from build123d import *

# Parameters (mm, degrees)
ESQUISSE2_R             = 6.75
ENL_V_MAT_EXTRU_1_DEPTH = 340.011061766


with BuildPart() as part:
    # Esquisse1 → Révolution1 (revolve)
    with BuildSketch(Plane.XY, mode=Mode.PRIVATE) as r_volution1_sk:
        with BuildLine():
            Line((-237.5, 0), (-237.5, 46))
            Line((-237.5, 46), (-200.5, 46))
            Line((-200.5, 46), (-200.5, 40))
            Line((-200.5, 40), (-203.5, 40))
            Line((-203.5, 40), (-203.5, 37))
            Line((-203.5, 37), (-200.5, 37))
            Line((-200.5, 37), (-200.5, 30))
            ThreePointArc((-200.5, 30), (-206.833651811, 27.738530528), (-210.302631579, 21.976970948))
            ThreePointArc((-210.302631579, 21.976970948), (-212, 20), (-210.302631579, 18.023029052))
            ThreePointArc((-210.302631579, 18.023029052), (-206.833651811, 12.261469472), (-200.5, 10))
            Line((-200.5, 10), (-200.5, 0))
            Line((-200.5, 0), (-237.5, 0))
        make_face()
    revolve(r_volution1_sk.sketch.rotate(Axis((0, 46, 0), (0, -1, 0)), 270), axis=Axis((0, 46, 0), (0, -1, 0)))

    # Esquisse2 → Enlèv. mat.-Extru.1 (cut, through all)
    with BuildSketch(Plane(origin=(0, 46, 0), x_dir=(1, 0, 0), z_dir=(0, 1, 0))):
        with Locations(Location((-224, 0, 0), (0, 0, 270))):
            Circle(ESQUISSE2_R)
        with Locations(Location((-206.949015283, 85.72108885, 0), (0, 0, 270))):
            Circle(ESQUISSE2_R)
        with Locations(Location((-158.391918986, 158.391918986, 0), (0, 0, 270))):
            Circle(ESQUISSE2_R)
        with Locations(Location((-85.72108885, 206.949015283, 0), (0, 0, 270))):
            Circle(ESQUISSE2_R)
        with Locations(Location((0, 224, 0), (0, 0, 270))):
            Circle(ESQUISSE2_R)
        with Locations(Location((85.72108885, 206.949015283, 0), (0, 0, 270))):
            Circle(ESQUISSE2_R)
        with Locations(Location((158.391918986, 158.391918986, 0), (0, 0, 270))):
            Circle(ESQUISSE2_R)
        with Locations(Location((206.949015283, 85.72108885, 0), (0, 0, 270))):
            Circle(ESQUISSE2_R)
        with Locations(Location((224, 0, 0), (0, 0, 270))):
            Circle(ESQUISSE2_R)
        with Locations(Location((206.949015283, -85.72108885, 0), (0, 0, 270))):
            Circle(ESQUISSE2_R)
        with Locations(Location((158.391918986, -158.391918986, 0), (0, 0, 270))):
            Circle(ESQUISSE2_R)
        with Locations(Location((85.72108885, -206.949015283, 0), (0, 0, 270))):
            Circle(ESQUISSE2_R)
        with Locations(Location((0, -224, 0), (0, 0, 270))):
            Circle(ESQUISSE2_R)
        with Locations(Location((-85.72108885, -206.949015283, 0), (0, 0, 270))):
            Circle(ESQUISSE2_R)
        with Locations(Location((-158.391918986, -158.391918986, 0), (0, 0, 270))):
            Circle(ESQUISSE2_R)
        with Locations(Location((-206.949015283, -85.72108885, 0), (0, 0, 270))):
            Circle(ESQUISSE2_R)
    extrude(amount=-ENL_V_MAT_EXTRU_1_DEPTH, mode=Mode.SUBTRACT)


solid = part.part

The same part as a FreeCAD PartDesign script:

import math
import FreeCAD as App
import Part
import Sketcher
from FreeCAD import Vector
Q = App.Units.Quantity

doc = App.newDocument("Part")
params = doc.addObject("Spreadsheet::Sheet", "Params")
for row, (alias, value) in enumerate([
    ("sketch1_radius", "10 mm"),
    ("sketch1_radius2", "2 mm"),
    ("sketch1_width", "37 mm"),
    ("sketch1_width2", "3 mm"),
    ("sketch1_height", "46 mm"),
    ("revolution_angle", "360 deg"),
    ("sketch2_diameter", "13.5 mm"),
], start=1):
    params.set(f"A{row}", alias)
    params.set(f"B{row}", "=" + value)
    params.setAlias(f"B{row}", alias)

body = doc.addObject("PartDesign::Body", "Body")

sketch1 = doc.addObject("Sketcher::SketchObject", "Sketch")
body.addObject(sketch1)
sketch1.AttachmentSupport = (doc.XY_Plane, [""])
sketch1.MapMode = "FlatFace"
sketch1.addGeometry([
    Part.LineSegment(Vector(-237.5, 46, 0), Vector(-237.5, 0, 0)),
    Part.LineSegment(Vector(-237.5, 0, 0), Vector(-200.5, 0, 0)),
    Part.LineSegment(Vector(-200.5, 0, 0), Vector(-200.5, 10, 0)),
    Part.ArcOfCircle(Part.Circle(Vector(-200.5, 20, 0), Vector(0, 0, 1), 10), math.radians(-168.597676), math.radians(-90)),
    Part.ArcOfCircle(Part.Circle(Vector(-210, 20, 0), Vector(0, 0, 1), 2), math.radians(98.703186), math.radians(261.296814)),
    Part.ArcOfCircle(Part.Circle(Vector(-200.5, 20, 0), Vector(0, 0, 1), 10), math.radians(90), math.radians(168.597676)),
    Part.LineSegment(Vector(-200.5, 30, 0), Vector(-200.5, 37, 0)),
    Part.LineSegment(Vector(-200.5, 37, 0), Vector(-203.5, 37, 0)),
    Part.LineSegment(Vector(-203.5, 37, 0), Vector(-203.5, 40, 0)),
    Part.LineSegment(Vector(-203.5, 40, 0), Vector(-200.5, 40, 0)),
    Part.LineSegment(Vector(-200.5, 40, 0), Vector(-200.5, 46, 0)),
    Part.LineSegment(Vector(-200.5, 46, 0), Vector(-237.5, 46, 0)),
], False)
sketch1.addConstraint([
    Sketcher.Constraint("Coincident", 0, 2, 1, 1),
    Sketcher.Constraint("Coincident", 1, 2, 2, 1),
    Sketcher.Constraint("Coincident", 2, 2, 3, 2),
    Sketcher.Constraint("Coincident", 3, 1, 4, 2),
    Sketcher.Constraint("Coincident", 4, 1, 5, 2),
    Sketcher.Constraint("Coincident", 5, 1, 6, 1),
    Sketcher.Constraint("Coincident", 6, 2, 7, 1),
    Sketcher.Constraint("Coincident", 7, 2, 8, 1),
    Sketcher.Constraint("Coincident", 8, 2, 9, 1),
    Sketcher.Constraint("Coincident", 9, 2, 10, 1),
    Sketcher.Constraint("Coincident", 10, 2, 11, 1),
    Sketcher.Constraint("Coincident", 11, 2, 0, 1),
    Sketcher.Constraint("Vertical", 0),
    Sketcher.Constraint("Horizontal", 1),
    Sketcher.Constraint("Vertical", 2),
    Sketcher.Constraint("Vertical", 6),
    Sketcher.Constraint("Horizontal", 7),
    Sketcher.Constraint("Vertical", 8),
    Sketcher.Constraint("Horizontal", 9),
    Sketcher.Constraint("Vertical", 10),
    Sketcher.Constraint("Horizontal", 11),
    Sketcher.Constraint("Coincident", 5, 3, 3, 3),
    Sketcher.Constraint("Equal", 3, 5),
    Sketcher.Constraint("PointOnObject", 0, 2, -1),
    Sketcher.Constraint("Horizontal", 3, 3, 4, 3),
    Sketcher.Constraint("Vertical", 5, 3, 1, 2),
    Sketcher.Constraint("Vertical", 2, 2, 5, 1),
    Sketcher.Constraint("Vertical", 6, 2, 9, 2),
    Sketcher.Constraint("Equal", 9, 8),
    Sketcher.Constraint("Radius", 3, Q("10 mm")),
    Sketcher.Constraint("Radius", 4, Q("2 mm")),
    Sketcher.Constraint("DistanceX", 1, 1, 1, 2, Q("37 mm")),
    Sketcher.Constraint("DistanceX", 7, 2, 7, 1, Q("3 mm")),
    Sketcher.Constraint("DistanceY", 0, 2, 0, 1, Q("46 mm")),
    Sketcher.Constraint("DistanceY", 2, 1, 2, 2, Q("10 mm")),
    Sketcher.Constraint("DistanceY", 6, 1, 6, 2, Q("7 mm")),
    Sketcher.Constraint("DistanceX", 4, 3, -1, 1, Q("210 mm")),
    Sketcher.Constraint("DistanceX", 3, 3, -1, 1, Q("200.5 mm")),
])
sketch1.setExpression("Constraints[29]", "Params.sketch1_radius")
sketch1.setExpression("Constraints[30]", "Params.sketch1_radius2")
sketch1.setExpression("Constraints[31]", "Params.sketch1_width")
sketch1.setExpression("Constraints[32]", "Params.sketch1_width2")
sketch1.setExpression("Constraints[33]", "Params.sketch1_height")
revolution = doc.addObject("PartDesign::Revolution", "Revolution")
body.addObject(revolution)
revolution.Profile = sketch1
revolution.ReferenceAxis = (sketch1, ["V_Axis"])
revolution.setExpression("Angle", "Params.revolution_angle")

sketch2 = doc.addObject("Sketcher::SketchObject", "Sketch001")
body.addObject(sketch2)
sketch2.AttachmentSupport = (doc.XZ_Plane, [""])
sketch2.MapMode = "FlatFace"
sketch2.AttachmentOffset = App.Placement(Vector(0, 0, -46), App.Rotation())
sketch2.addGeometry([
    Part.Circle(Vector(-224, 0, 0), Vector(0, 0, 1), 6.75),
    Part.Circle(Vector(-206.949015, -85.721089, 0), Vector(0, 0, 1), 6.75),
    Part.Circle(Vector(-158.391919, -158.391919, 0), Vector(0, 0, 1), 6.75),
    Part.Circle(Vector(-85.721089, -206.949015, 0), Vector(0, 0, 1), 6.75),
    Part.Circle(Vector(0, -224, 0), Vector(0, 0, 1), 6.75),
    Part.Circle(Vector(85.721089, -206.949015, 0), Vector(0, 0, 1), 6.75),
    Part.Circle(Vector(158.391919, -158.391919, 0), Vector(0, 0, 1), 6.75),
    Part.Circle(Vector(206.949015, -85.721089, 0), Vector(0, 0, 1), 6.75),
    Part.Circle(Vector(224, 0, 0), Vector(0, 0, 1), 6.75),
    Part.Circle(Vector(206.949015, 85.721089, 0), Vector(0, 0, 1), 6.75),
    Part.Circle(Vector(158.391919, 158.391919, 0), Vector(0, 0, 1), 6.75),
    Part.Circle(Vector(85.721089, 206.949015, 0), Vector(0, 0, 1), 6.75),
    Part.Circle(Vector(0, 224, 0), Vector(0, 0, 1), 6.75),
    Part.Circle(Vector(-85.721089, 206.949015, 0), Vector(0, 0, 1), 6.75),
    Part.Circle(Vector(-158.391919, 158.391919, 0), Vector(0, 0, 1), 6.75),
    Part.Circle(Vector(-206.949015, 85.721089, 0), Vector(0, 0, 1), 6.75),
], False)
sketch2.addConstraint([
    Sketcher.Constraint("Equal", 0, 1),
    Sketcher.Constraint("Equal", 1, 2),
    Sketcher.Constraint("Equal", 2, 3),
    Sketcher.Constraint("Equal", 3, 4),
    Sketcher.Constraint("Equal", 4, 5),
    Sketcher.Constraint("Equal", 5, 6),
    Sketcher.Constraint("Equal", 6, 7),
    Sketcher.Constraint("Equal", 7, 8),
    Sketcher.Constraint("Equal", 8, 9),
    Sketcher.Constraint("Equal", 9, 10),
    Sketcher.Constraint("Equal", 10, 11),
    Sketcher.Constraint("Equal", 11, 12),
    Sketcher.Constraint("Equal", 12, 13),
    Sketcher.Constraint("Equal", 13, 14),
    Sketcher.Constraint("Equal", 14, 15),
    Sketcher.Constraint("Symmetric", 0, 3, 8, 3, -1, 1),
    Sketcher.Constraint("Symmetric", 1, 3, 9, 3, -1, 1),
    Sketcher.Constraint("Symmetric", 2, 3, 10, 3, -1, 1),
    Sketcher.Constraint("Symmetric", 3, 3, 11, 3, -1, 1),
    Sketcher.Constraint("Symmetric", 4, 3, 12, 3, -1, 1),
    Sketcher.Constraint("Symmetric", 5, 3, 13, 3, -1, 1),
    Sketcher.Constraint("Symmetric", 6, 3, 14, 3, -1, 1),
    Sketcher.Constraint("Symmetric", 7, 3, 15, 3, -1, 1),
    Sketcher.Constraint("Symmetric", 3, 3, 5, 3, -2),
    Sketcher.Constraint("Symmetric", 2, 3, 6, 3, -2),
    Sketcher.Constraint("Symmetric", 1, 3, 7, 3, -2),
    Sketcher.Constraint("PointOnObject", 0, 3, -1),
    Sketcher.Constraint("PointOnObject", 4, 3, -2),
    Sketcher.Constraint("Diameter", 0, Q("13.5 mm")),
    Sketcher.Constraint("DistanceX", 0, 3, -1, 1, Q("224 mm")),
    Sketcher.Constraint("DistanceY", 4, 3, -1, 1, Q("224 mm")),
    Sketcher.Constraint("DistanceY", 1, 3, -1, 1, Q("85.721089 mm")),
    Sketcher.Constraint("DistanceX", 2, 3, -1, 1, Q("158.391919 mm")),
    Sketcher.Constraint("DistanceY", 2, 3, -1, 1, Q("158.391919 mm")),
    Sketcher.Constraint("DistanceX", 3, 3, -1, 1, Q("85.721089 mm")),
    Sketcher.Constraint("DistanceX", 1, 3, -1, 1, Q("206.949015 mm")),
    Sketcher.Constraint("DistanceY", 3, 3, -1, 1, Q("206.949015 mm")),
])
sketch2.setExpression("Constraints[28]", "Params.sketch2_diameter")
pocket1 = doc.addObject("PartDesign::Pocket", "Pocket")
body.addObject(pocket1)
pocket1.Profile = sketch2
pocket1.Type = "ThroughAll"
pocket1.Reversed = True

doc.recompute()
